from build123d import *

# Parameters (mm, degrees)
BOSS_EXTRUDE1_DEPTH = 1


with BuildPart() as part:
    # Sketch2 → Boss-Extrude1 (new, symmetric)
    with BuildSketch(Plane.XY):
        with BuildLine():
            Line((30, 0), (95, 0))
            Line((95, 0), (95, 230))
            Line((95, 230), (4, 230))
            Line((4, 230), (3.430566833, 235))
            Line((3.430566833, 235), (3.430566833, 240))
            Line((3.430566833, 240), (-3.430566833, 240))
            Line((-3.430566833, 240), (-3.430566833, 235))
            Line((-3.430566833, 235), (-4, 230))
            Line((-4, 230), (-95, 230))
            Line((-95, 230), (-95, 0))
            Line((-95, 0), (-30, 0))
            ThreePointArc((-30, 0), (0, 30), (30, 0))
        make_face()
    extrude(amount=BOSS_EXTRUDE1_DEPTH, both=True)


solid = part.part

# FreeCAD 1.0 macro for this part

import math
import FreeCAD as App
import Part
import Sketcher

doc = App.newDocument("Part")
body = doc.addObject("PartDesign::Body", "Body")

# Sketch on XY plane
sketch1 = body.newObject("Sketcher::SketchObject", "Sketch")
sketch1.AttachmentSupport = (doc.getObject("XY_Plane"), [""])
sketch1.MapMode = "FlatFace"
sketch1.addGeometry(Part.LineSegment(App.Vector(30, 0, 0), App.Vector(95, 0, 0)), False)
sketch1.addGeometry(Part.LineSegment(App.Vector(95, 0, 0), App.Vector(95, 230, 0)), False)
sketch1.addGeometry(Part.LineSegment(App.Vector(95, 230, 0), App.Vector(4, 230, 0)), False)
sketch1.addGeometry(Part.LineSegment(App.Vector(4, 230, 0), App.Vector(3, 235, 0)), False)
sketch1.addGeometry(Part.LineSegment(App.Vector(3, 235, 0), App.Vector(3, 240, 0)), False)
sketch1.addGeometry(Part.LineSegment(App.Vector(3, 240, 0), App.Vector(-3, 240, 0)), False)
sketch1.addGeometry(Part.LineSegment(App.Vector(-3, 240, 0), App.Vector(-3, 235, 0)), False)
sketch1.addGeometry(Part.LineSegment(App.Vector(-3, 235, 0), App.Vector(-4, 230, 0)), False)
sketch1.addGeometry(Part.LineSegment(App.Vector(-4, 230, 0), App.Vector(-95, 230, 0)), False)
sketch1.addGeometry(Part.LineSegment(App.Vector(-95, 230, 0), App.Vector(-95, 0, 0)), False)
sketch1.addGeometry(Part.LineSegment(App.Vector(-95, 0, 0), App.Vector(-30, 0, 0)), False)
sketch1.addGeometry(Part.ArcOfCircle(Part.Circle(App.Vector(0, 0, 0), App.Vector(0, 0, 1), 30), math.radians(0), math.radians(180)), False)
sketch1.addConstraint(Sketcher.Constraint("Coincident", 0, 2, 1, 1))
sketch1.addConstraint(Sketcher.Constraint("Coincident", 1, 2, 2, 1))
sketch1.addConstraint(Sketcher.Constraint("Coincident", 2, 2, 3, 1))
sketch1.addConstraint(Sketcher.Constraint("Coincident", 3, 2, 4, 1))
sketch1.addConstraint(Sketcher.Constraint("Coincident", 4, 2, 5, 1))
sketch1.addConstraint(Sketcher.Constraint("Coincident", 5, 2, 6, 1))
sketch1.addConstraint(Sketcher.Constraint("Coincident", 6, 2, 7, 1))
sketch1.addConstraint(Sketcher.Constraint("Coincident", 7, 2, 8, 1))
sketch1.addConstraint(Sketcher.Constraint("Coincident", 8, 2, 9, 1))
sketch1.addConstraint(Sketcher.Constraint("Coincident", 9, 2, 10, 1))
sketch1.addConstraint(Sketcher.Constraint("Coincident", 10, 2, 11, 2))
sketch1.addConstraint(Sketcher.Constraint("Coincident", 11, 1, 0, 1))
sketch1.addConstraint(Sketcher.Constraint("Horizontal", 0))
sketch1.addConstraint(Sketcher.Constraint("Vertical", 1))
sketch1.addConstraint(Sketcher.Constraint("Horizontal", 2))
sketch1.addConstraint(Sketcher.Constraint("Vertical", 4))
sketch1.addConstraint(Sketcher.Constraint("Horizontal", 5))
sketch1.addConstraint(Sketcher.Constraint("Vertical", 6))
sketch1.addConstraint(Sketcher.Constraint("Horizontal", 8))
sketch1.addConstraint(Sketcher.Constraint("Vertical", 9))
sketch1.addConstraint(Sketcher.Constraint("Horizontal", 10))
sketch1.addConstraint(Sketcher.Constraint("Coincident", 11, 3, -1, 1))
sketch1.addConstraint(Sketcher.Constraint("Symmetric", 0, 2, 9, 2, -1, 1))
sketch1.addConstraint(Sketcher.Constraint("Symmetric", 3, 2, 6, 2, -2))
sketch1.addConstraint(Sketcher.Constraint("Symmetric", 2, 2, 7, 2, -2))
sketch1.addConstraint(Sketcher.Constraint("PointOnObject", 0, 2, -1))
sketch1.addConstraint(Sketcher.Constraint("Radius", 11, 30.0))
sketch1.addConstraint(Sketcher.Constraint("DistanceX", 0, 1, 0, 2, 65.0))
sketch1.addConstraint(Sketcher.Constraint("DistanceX", 2, 2, 2, 1, 91.0))
sketch1.addConstraint(Sketcher.Constraint("DistanceY", 1, 1, 1, 2, 230.0))
sketch1.addConstraint(Sketcher.Constraint("DistanceY", 4, 1, 4, 2, 5.0))
sketch1.addConstraint(Sketcher.Constraint("DistanceY", -1, 1, 3, 2, 235.0))
sketch1.addConstraint(Sketcher.Constraint("Distance", 3, 5.032321))
pad1 = body.newObject("PartDesign::Pad", "Pad")
pad1.Profile = sketch1
pad1.Length = 2
pad1.Midplane = True

doc.recompute()
